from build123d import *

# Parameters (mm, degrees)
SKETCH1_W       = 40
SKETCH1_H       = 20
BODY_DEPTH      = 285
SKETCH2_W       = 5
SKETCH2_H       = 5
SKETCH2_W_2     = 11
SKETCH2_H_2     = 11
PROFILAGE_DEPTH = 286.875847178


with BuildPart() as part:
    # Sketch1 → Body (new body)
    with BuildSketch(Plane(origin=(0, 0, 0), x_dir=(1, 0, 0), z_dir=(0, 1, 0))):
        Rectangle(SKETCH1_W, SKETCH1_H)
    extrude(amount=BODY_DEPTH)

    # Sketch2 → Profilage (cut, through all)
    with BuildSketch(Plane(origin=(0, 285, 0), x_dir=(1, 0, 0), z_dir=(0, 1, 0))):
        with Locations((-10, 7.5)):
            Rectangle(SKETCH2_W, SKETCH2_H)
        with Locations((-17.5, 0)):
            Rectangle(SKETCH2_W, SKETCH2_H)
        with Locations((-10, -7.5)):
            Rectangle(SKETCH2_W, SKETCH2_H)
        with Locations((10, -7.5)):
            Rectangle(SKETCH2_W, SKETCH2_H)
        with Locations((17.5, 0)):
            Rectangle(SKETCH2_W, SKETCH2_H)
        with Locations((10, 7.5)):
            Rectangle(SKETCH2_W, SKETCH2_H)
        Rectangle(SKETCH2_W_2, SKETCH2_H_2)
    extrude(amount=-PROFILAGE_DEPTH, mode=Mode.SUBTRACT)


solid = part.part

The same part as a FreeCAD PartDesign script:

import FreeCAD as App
import Part
import Sketcher
from FreeCAD import Vector
Q = App.Units.Quantity

doc = App.newDocument("Part")
body = doc.addObject("PartDesign::Body", "Body")

# Sketch on XZ plane
sketch1 = body.newObject("Sketcher::SketchObject", "Sketch")
sketch1.AttachmentSupport = (doc.getObject("XZ_Plane"), [""])
sketch1.MapMode = "FlatFace"
sketch1.addGeometry([
    Part.LineSegment(Vector(-20, -10, 0), Vector(-20, 10, 0)),
    Part.LineSegment(Vector(-20, 10, 0), Vector(20, 10, 0)),
    Part.LineSegment(Vector(20, 10, 0), Vector(20, -10, 0)),
    Part.LineSegment(Vector(20, -10, 0), Vector(-20, -10, 0)),
], False)
sketch1.addConstraint([
    Sketcher.Constraint("Coincident", 0, 2, 1, 1),
    Sketcher.Constraint("Coincident", 1, 2, 2, 1),
    Sketcher.Constraint("Coincident", 2, 2, 3, 1),
    Sketcher.Constraint("Coincident", 3, 2, 0, 1),
    Sketcher.Constraint("Vertical", 0),
    Sketcher.Constraint("Horizontal", 1),
    Sketcher.Constraint("Vertical", 2),
    Sketcher.Constraint("Horizontal", 3),
    Sketcher.Constraint("Symmetric", 0, 2, 2, 2, -1, 1),
    Sketcher.Constraint("DistanceX", 1, 1, 1, 2, Q("40 mm")),
    Sketcher.Constraint("DistanceY", 0, 1, 0, 2, Q("20 mm")),
])
pad1 = body.newObject("PartDesign::Pad", "Pad")
pad1.Profile = sketch1
pad1.Length = 285
pad1.Reversed = True

# Sketch on XZ plane
sketch2 = body.newObject("Sketcher::SketchObject", "Sketch001")
sketch2.AttachmentSupport = (doc.getObject("XZ_Plane"), [""])
sketch2.MapMode = "FlatFace"
sketch2.AttachmentOffset = App.Placement(Vector(0, 0, -285), App.Rotation())
sketch2.addGeometry([
    Part.LineSegment(Vector(-12, -10, 0), Vector(-12, -5, 0)),  # 0
    Part.LineSegment(Vector(-12, -5, 0), Vector(-8, -5, 0)),  # 1
    Part.LineSegment(Vector(-8, -5, 0), Vector(-8, -10, 0)),  # 2
    Part.LineSegment(Vector(-8, -10, 0), Vector(-12, -10, 0)),  # 3
    Part.LineSegment(Vector(-20, -2, 0), Vector(-20, 2, 0)),  # 4
    Part.LineSegment(Vector(-20, 2, 0), Vector(-15, 2, 0)),  # 5
    Part.LineSegment(Vector(-15, 2, 0), Vector(-15, -2, 0)),  # 6
    Part.LineSegment(Vector(-15, -2, 0), Vector(-20, -2, 0)),  # 7
    Part.LineSegment(Vector(-12, 5, 0), Vector(-12, 10, 0)),  # 8
    Part.LineSegment(Vector(-12, 10, 0), Vector(-8, 10, 0)),  # 9
    Part.LineSegment(Vector(-8, 10, 0), Vector(-8, 5, 0)),  # 10
    Part.LineSegment(Vector(-8, 5, 0), Vector(-12, 5, 0)),  # 11
    Part.LineSegment(Vector(8, 5, 0), Vector(8, 10, 0)),  # 12
    Part.LineSegment(Vector(8, 10, 0), Vector(12, 10, 0)),  # 13
    Part.LineSegment(Vector(12, 10, 0), Vector(12, 5, 0)),  # 14
    Part.LineSegment(Vector(12, 5, 0), Vector(8, 5, 0)),  # 15
    Part.LineSegment(Vector(15, -2, 0), Vector(15, 2, 0)),  # 16
    Part.LineSegment(Vector(15, 2, 0), Vector(20, 2, 0)),  # 17
    Part.LineSegment(Vector(20, 2, 0), Vector(20, -2, 0)),  # 18
    Part.LineSegment(Vector(20, -2, 0), Vector(15, -2, 0)),  # 19
    Part.LineSegment(Vector(8, -10, 0), Vector(8, -5, 0)),  # 20
    Part.LineSegment(Vector(8, -5, 0), Vector(12, -5, 0)),  # 21
    Part.LineSegment(Vector(12, -5, 0), Vector(12, -10, 0)),  # 22
    Part.LineSegment(Vector(12, -10, 0), Vector(8, -10, 0)),  # 23
    Part.LineSegment(Vector(-6, -6, 0), Vector(-6, 6, 0)),  # 24
    Part.LineSegment(Vector(-6, 6, 0), Vector(6, 6, 0)),  # 25
    Part.LineSegment(Vector(6, 6, 0), Vector(6, -6, 0)),  # 26
    Part.LineSegment(Vector(6, -6, 0), Vector(-6, -6, 0)),  # 27
], False)
sketch2.addConstraint([
    Sketcher.Constraint("Coincident", 0, 2, 1, 1),
    Sketcher.Constraint("Coincident", 1, 2, 2, 1),
    Sketcher.Constraint("Coincident", 2, 2, 3, 1),
    Sketcher.Constraint("Coincident", 3, 2, 0, 1),
    Sketcher.Constraint("Coincident", 4, 2, 5, 1),
    Sketcher.Constraint("Coincident", 5, 2, 6, 1),
    Sketcher.Constraint("Coincident", 6, 2, 7, 1),
    Sketcher.Constraint("Coincident", 7, 2, 4, 1),
    Sketcher.Constraint("Coincident", 8, 2, 9, 1),
    Sketcher.Constraint("Coincident", 9, 2, 10, 1),
    Sketcher.Constraint("Coincident", 10, 2, 11, 1),
    Sketcher.Constraint("Coincident", 11, 2, 8, 1),
    Sketcher.Constraint("Coincident", 12, 2, 13, 1),
    Sketcher.Constraint("Coincident", 13, 2, 14, 1),
    Sketcher.Constraint("Coincident", 14, 2, 15, 1),
    Sketcher.Constraint("Coincident", 15, 2, 12, 1),
    Sketcher.Constraint("Coincident", 16, 2, 17, 1),
    Sketcher.Constraint("Coincident", 17, 2, 18, 1),
    Sketcher.Constraint("Coincident", 18, 2, 19, 1),
    Sketcher.Constraint("Coincident", 19, 2, 16, 1),
    Sketcher.Constraint("Coincident", 20, 2, 21, 1),
    Sketcher.Constraint("Coincident", 21, 2, 22, 1),
    Sketcher.Constraint("Coincident", 22, 2, 23, 1),
    Sketcher.Constraint("Coincident", 23, 2, 20, 1),
    Sketcher.Constraint("Coincident", 24, 2, 25, 1),
    Sketcher.Constraint("Coincident", 25, 2, 26, 1),
    Sketcher.Constraint("Coincident", 26, 2, 27, 1),
    Sketcher.Constraint("Coincident", 27, 2, 24, 1),
    Sketcher.Constraint("Vertical", 0),
    Sketcher.Constraint("Horizontal", 1),
    Sketcher.Constraint("Vertical", 2),
    Sketcher.Constraint("Horizontal", 3),
    Sketcher.Constraint("Vertical", 4),
    Sketcher.Constraint("Horizontal", 5),
    Sketcher.Constraint("Vertical", 6),
    Sketcher.Constraint("Horizontal", 7),
    Sketcher.Constraint("Vertical", 8),
    Sketcher.Constraint("Horizontal", 9),
    Sketcher.Constraint("Vertical", 10),
    Sketcher.Constraint("Horizontal", 11),
    Sketcher.Constraint("Vertical", 12),
    Sketcher.Constraint("Horizontal", 13),
    Sketcher.Constraint("Vertical", 14),
    Sketcher.Constraint("Horizontal", 15),
    Sketcher.Constraint("Vertical", 16),
    Sketcher.Constraint("Horizontal", 17),
    Sketcher.Constraint("Vertical", 18),
    Sketcher.Constraint("Horizontal", 19),
    Sketcher.Constraint("Vertical", 20),
    Sketcher.Constraint("Horizontal", 21),
    Sketcher.Constraint("Vertical", 22),
    Sketcher.Constraint("Horizontal", 23),
    Sketcher.Constraint("Vertical", 24),
    Sketcher.Constraint("Horizontal", 25),
    Sketcher.Constraint("Vertical", 26),
    Sketcher.Constraint("Horizontal", 27),
    Sketcher.Constraint("Symmetric", 2, 2, 12, 2, -1, 1),
    Sketcher.Constraint("Symmetric", 0, 2, 14, 2, -1, 1),
    Sketcher.Constraint("Symmetric", 6, 2, 16, 2, -1, 1),
    Sketcher.Constraint("Symmetric", 4, 2, 18, 2, -1, 1),
    Sketcher.Constraint("Symmetric", 10, 2, 20, 2, -1, 1),
    Sketcher.Constraint("Symmetric", 8, 2, 22, 2, -1, 1),
    Sketcher.Constraint("Symmetric", 24, 2, 26, 2, -1, 1),
    Sketcher.Constraint("Symmetric", 9, 2, 12, 2, -2),
    Sketcher.Constraint("Symmetric", 11, 2, 14, 2, -2),
    Sketcher.Constraint("Horizontal", 5, 2, 16, 2),
    Sketcher.Constraint("Equal", 3, 5),
    Sketcher.Constraint("Equal", 23, 0),
    Sketcher.Constraint("Equal", 2, 4),
    Sketcher.Constraint("Equal", 27, 24),
    Sketcher.Constraint("DistanceX", 1, 1, 1, 2, Q("5 mm")),
    Sketcher.Constraint("DistanceX", 25, 1, 25, 2, Q("11 mm")),
    Sketcher.Constraint("DistanceY", 0, 2, -1, 1, Q("5 mm")),
    Sketcher.Constraint("DistanceX", 4, 2, -1, 1, Q("20 mm")),
    Sketcher.Constraint("DistanceX", 9, 2, 12, 2, Q("15 mm")),
])
pocket1 = body.newObject("PartDesign::Pocket", "Pocket")
pocket1.Profile = sketch2
pocket1.Type = "ThroughAll"
pocket1.Reversed = True

doc.recompute()
